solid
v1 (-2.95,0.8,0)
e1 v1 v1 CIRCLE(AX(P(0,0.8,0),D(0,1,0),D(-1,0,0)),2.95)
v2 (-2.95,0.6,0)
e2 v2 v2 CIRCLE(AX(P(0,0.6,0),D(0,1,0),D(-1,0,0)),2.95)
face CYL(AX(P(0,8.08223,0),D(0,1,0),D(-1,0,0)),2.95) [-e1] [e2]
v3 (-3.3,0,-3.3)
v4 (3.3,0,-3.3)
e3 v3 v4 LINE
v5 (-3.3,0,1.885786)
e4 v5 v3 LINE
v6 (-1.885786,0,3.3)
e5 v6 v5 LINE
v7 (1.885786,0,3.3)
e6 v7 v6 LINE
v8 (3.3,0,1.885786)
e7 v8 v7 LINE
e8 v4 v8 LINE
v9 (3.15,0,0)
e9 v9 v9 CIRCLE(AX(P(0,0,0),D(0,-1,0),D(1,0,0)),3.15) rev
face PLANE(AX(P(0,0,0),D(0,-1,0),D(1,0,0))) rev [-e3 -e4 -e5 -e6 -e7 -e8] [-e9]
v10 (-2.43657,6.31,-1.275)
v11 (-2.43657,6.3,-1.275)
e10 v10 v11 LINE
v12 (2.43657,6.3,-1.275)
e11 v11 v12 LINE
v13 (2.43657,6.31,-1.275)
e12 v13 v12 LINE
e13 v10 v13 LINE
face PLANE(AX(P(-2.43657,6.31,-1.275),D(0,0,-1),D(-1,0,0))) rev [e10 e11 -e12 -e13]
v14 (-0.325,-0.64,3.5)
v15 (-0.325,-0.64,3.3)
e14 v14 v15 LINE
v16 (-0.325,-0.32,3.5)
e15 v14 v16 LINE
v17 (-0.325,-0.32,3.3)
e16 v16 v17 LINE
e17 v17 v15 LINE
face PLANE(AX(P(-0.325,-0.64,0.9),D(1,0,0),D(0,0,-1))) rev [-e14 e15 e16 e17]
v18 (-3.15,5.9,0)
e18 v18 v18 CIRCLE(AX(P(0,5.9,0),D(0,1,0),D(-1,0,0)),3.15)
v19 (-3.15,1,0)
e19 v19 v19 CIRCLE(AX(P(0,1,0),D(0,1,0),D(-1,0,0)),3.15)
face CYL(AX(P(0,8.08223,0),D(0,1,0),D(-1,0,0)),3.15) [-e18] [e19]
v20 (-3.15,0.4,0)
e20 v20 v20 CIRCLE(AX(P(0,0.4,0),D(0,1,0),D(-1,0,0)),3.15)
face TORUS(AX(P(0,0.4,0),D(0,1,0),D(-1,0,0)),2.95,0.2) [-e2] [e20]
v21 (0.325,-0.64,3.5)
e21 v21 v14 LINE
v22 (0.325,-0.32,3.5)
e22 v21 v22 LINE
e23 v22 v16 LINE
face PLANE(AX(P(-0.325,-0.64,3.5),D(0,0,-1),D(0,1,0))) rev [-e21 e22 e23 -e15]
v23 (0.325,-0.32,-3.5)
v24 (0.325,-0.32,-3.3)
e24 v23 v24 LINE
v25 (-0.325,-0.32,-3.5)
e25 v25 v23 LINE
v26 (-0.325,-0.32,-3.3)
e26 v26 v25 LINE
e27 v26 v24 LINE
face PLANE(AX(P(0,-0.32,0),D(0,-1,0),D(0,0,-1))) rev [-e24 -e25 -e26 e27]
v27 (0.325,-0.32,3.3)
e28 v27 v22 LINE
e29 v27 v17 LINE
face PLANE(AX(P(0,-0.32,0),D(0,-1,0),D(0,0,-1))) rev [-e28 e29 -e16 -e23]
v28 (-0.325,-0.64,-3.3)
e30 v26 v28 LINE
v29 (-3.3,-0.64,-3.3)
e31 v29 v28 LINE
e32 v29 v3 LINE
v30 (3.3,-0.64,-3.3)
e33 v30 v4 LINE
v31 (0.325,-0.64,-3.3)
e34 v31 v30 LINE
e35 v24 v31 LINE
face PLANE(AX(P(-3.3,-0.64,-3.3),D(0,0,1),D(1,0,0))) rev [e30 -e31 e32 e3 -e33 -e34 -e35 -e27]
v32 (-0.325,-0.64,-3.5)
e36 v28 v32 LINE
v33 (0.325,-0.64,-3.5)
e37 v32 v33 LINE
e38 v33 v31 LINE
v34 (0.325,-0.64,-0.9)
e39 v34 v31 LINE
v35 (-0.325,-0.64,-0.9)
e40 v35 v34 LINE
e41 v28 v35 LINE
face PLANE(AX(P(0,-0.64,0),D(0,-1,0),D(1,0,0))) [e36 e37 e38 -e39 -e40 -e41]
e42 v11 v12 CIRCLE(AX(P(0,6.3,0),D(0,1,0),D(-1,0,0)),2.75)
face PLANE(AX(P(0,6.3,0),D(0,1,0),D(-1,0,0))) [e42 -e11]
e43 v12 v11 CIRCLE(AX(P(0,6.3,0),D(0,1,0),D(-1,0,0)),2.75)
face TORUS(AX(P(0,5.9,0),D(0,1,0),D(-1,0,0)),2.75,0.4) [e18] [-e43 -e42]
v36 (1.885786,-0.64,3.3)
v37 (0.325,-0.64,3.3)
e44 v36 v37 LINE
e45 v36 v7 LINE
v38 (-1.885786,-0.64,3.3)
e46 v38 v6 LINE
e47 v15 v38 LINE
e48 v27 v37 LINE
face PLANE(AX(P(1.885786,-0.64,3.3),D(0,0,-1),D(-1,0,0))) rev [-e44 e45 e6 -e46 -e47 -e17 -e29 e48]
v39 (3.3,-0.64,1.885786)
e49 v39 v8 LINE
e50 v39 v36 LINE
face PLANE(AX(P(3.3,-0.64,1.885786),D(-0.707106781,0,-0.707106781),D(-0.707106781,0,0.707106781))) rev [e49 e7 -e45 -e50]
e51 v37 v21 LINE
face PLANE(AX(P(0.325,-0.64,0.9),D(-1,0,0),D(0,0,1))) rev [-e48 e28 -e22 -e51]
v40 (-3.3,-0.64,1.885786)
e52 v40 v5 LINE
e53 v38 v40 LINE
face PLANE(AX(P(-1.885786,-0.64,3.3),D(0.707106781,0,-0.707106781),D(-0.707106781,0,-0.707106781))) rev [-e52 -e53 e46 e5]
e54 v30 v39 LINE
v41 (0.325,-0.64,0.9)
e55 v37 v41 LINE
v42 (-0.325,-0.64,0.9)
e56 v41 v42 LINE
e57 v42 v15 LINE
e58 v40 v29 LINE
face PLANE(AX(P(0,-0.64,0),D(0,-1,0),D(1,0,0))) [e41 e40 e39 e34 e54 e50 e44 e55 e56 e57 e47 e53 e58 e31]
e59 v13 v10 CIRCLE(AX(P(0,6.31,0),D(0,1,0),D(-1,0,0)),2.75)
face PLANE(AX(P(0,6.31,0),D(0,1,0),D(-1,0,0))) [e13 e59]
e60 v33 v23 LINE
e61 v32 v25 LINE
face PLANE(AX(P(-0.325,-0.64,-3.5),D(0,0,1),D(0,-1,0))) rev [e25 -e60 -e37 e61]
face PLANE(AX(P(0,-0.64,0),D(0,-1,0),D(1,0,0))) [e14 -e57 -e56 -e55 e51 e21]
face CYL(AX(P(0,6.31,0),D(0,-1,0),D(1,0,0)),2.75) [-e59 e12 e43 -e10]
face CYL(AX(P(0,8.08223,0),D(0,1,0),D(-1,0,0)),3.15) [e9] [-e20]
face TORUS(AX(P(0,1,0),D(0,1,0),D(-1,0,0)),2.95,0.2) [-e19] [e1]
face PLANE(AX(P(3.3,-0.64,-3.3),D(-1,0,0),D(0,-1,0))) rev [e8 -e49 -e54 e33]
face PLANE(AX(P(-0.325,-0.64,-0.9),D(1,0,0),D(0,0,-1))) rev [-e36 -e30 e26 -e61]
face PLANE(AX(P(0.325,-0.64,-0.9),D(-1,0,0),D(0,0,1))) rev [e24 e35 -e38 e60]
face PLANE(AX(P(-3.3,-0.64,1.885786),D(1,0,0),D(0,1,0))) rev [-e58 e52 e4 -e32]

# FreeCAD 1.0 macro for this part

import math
import FreeCAD as App
import Part
import Sketcher
Q = App.Units.Quantity

doc = App.newDocument("Part")
body = doc.addObject("PartDesign::Body", "Body")

# Sketch on XY plane
sketch1 = body.newObject("Sketcher::SketchObject", "Sketch")
sketch1.AttachmentSupport = (doc.getObject("XY_Plane"), [""])
sketch1.MapMode = "FlatFace"
sketch1.addGeometry([
    Part.LineSegment(App.Vector(0, 6.3, 0), App.Vector(-2.75, 6.3, 0)),  # 0
    Part.ArcOfCircle(Part.Circle(App.Vector(-2.75, 5.9, 0), App.Vector(0, 0, 1), 0.4), math.radians(90), math.radians(180)),  # 1
    Part.LineSegment(App.Vector(-3.15, 5.9, 0), App.Vector(-3.15, 1, 0)),  # 2
    Part.ArcOfCircle(Part.Circle(App.Vector(-2.95, 1, 0), App.Vector(0, 0, 1), 0.2), math.radians(-180), math.radians(-90)),  # 3
    Part.LineSegment(App.Vector(-2.95, 0.8, 0), App.Vector(-2.95, 0.6, 0)),  # 4
    Part.ArcOfCircle(Part.Circle(App.Vector(-2.95, 0.4, 0), App.Vector(0, 0, 1), 0.2), math.radians(90), math.radians(180)),  # 5
    Part.LineSegment(App.Vector(-3.15, 0.4, 0), App.Vector(-3.15, 0, 0)),  # 6
    Part.LineSegment(App.Vector(-3.15, 0, 0), App.Vector(0, 0, 0)),  # 7
    Part.LineSegment(App.Vector(0, 0, 0), App.Vector(0, 6.3, 0)),  # 8
], False)
sketch1.addConstraint([
    Sketcher.Constraint("Tangent", 0, 2, 1, 1),
    Sketcher.Constraint("Tangent", 1, 2, 2, 1),
    Sketcher.Constraint("Tangent", 2, 2, 3, 1),
    Sketcher.Constraint("Coincident", 3, 2, 4, 1),
    Sketcher.Constraint("Coincident", 4, 2, 5, 1),
    Sketcher.Constraint("Tangent", 5, 2, 6, 1),
    Sketcher.Constraint("Coincident", 6, 2, 7, 1),
    Sketcher.Constraint("Coincident", 7, 2, 8, 1),
    Sketcher.Constraint("Coincident", 8, 2, 0, 1),
    Sketcher.Constraint("Horizontal", 0),
    Sketcher.Constraint("Vertical", 2),
    Sketcher.Constraint("Vertical", 4),
    Sketcher.Constraint("Vertical", 6),
    Sketcher.Constraint("Horizontal", 7),
    Sketcher.Constraint("Vertical", 8),
    Sketcher.Constraint("Coincident", 7, 2, -1, 1),
    Sketcher.Constraint("Equal", 3, 5),
    Sketcher.Constraint("Vertical", 3, 3, 5, 3),
    Sketcher.Constraint("Vertical", 5, 3, 3, 2),
    Sketcher.Constraint("Radius", 1, Q("0.4 mm")),
    Sketcher.Constraint("Radius", 3, Q("0.2 mm")),
    Sketcher.Constraint("DistanceY", 2, 2, 2, 1, Q("4.9 mm")),
    Sketcher.Constraint("DistanceY", 4, 2, 4, 1, Q("0.2 mm")),
    Sketcher.Constraint("DistanceY", 6, 2, 6, 1, Q("0.4 mm")),
    Sketcher.Constraint("DistanceX", 0, 2, 0, 1, Q("2.75 mm")),
])
revolution = body.newObject("PartDesign::Revolution", "Revolution")
revolution.Profile = sketch1
revolution.ReferenceAxis = (sketch1, ["V_Axis"])
revolution.Angle = 360

# Sketch on XZ plane
sketch2 = body.newObject("Sketcher::SketchObject", "Sketch001")
sketch2.AttachmentSupport = (doc.getObject("XZ_Plane"), [""])
sketch2.MapMode = "FlatFace"
sketch2.AttachmentOffset = App.Placement(App.Vector(0, 0, -6.3), App.Rotation())
sketch2.addGeometry([
    Part.LineSegment(App.Vector(-2.4, -1.3, 0), App.Vector(2.4, -1.3, 0)),
    Part.ArcOfCircle(Part.Circle(App.Vector(0, 0, 0), App.Vector(0, 0, 1), 2.8), math.radians(-152), math.radians(-28)),
], False)
sketch2.addConstraint([
    Sketcher.Constraint("Coincident", 0, 1, 1, 1),
    Sketcher.Constraint("Coincident", 1, 2, 0, 2),
    Sketcher.Constraint("Horizontal", 0),
    Sketcher.Constraint("Coincident", 1, 3, -1, 1),
    Sketcher.Constraint("Radius", 1, Q("2.75 mm")),
    Sketcher.Constraint("DistanceY", 0, 1, -1, 1, Q("1.275 mm")),
])
pad1 = body.newObject("PartDesign::Pad", "Pad")
pad1.Profile = sketch2
pad1.Length = 0.01
pad1.Reversed = True

# Sketch on XZ plane
sketch3 = body.newObject("Sketcher::SketchObject", "Sketch002")
sketch3.AttachmentSupport = (doc.getObject("XZ_Plane"), [""])
sketch3.MapMode = "FlatFace"
sketch3.addGeometry([
    Part.LineSegment(App.Vector(-1.9, 3.3, 0), App.Vector(-3.3, 1.9, 0)),  # 0
    Part.LineSegment(App.Vector(-3.3, 1.9, 0), App.Vector(-3.3, -3.3, 0)),  # 1
    Part.LineSegment(App.Vector(-3.3, -3.3, 0), App.Vector(3.3, -3.3, 0)),  # 2
    Part.LineSegment(App.Vector(3.3, -3.3, 0), App.Vector(3.3, 1.9, 0)),  # 3
    Part.LineSegment(App.Vector(3.3, 1.9, 0), App.Vector(1.9, 3.3, 0)),  # 4
    Part.LineSegment(App.Vector(1.9, 3.3, 0), App.Vector(-1.9, 3.3, 0)),  # 5
], False)
sketch3.addConstraint([
    Sketcher.Constraint("Coincident", 0, 2, 1, 1),
    Sketcher.Constraint("Coincident", 1, 2, 2, 1),
    Sketcher.Constraint("Coincident", 2, 2, 3, 1),
    Sketcher.Constraint("Coincident", 3, 2, 4, 1),
    Sketcher.Constraint("Coincident", 4, 2, 5, 1),
    Sketcher.Constraint("Coincident", 5, 2, 0, 1),
    Sketcher.Constraint("Vertical", 1),
    Sketcher.Constraint("Horizontal", 2),
    Sketcher.Constraint("Vertical", 3),
    Sketcher.Constraint("Horizontal", 5),
    Sketcher.Constraint("Symmetric", 0, 2, 3, 2, -2),
    Sketcher.Constraint("Perpendicular", 0, 4),
    Sketcher.Constraint("Equal", 0, 4),
    Sketcher.Constraint("Distance", 0, Q("2 mm")),
    Sketcher.Constraint("DistanceX", 2, 1, 2, 2, Q("6.6 mm")),
    Sketcher.Constraint("DistanceY", 1, 2, -1, 1, Q("3.3 mm")),
    Sketcher.Constraint("DistanceY", -1, 1, 4, 2, Q("3.3 mm")),
])
pad2 = body.newObject("PartDesign::Pad", "Pad001")
pad2.Profile = sketch3
pad2.Length = 0.64

# Sketch on XZ plane
sketch4 = body.newObject("Sketcher::SketchObject", "Sketch003")
sketch4.AttachmentSupport = (doc.getObject("XZ_Plane"), [""])
sketch4.MapMode = "FlatFace"
sketch4.AttachmentOffset = App.Placement(App.Vector(0, 0, 0.64), App.Rotation())
sketch4.addGeometry([
    Part.LineSegment(App.Vector(-0.3, -0.9, 0), App.Vector(-0.3, -3.3, 0)),  # 0
    Part.LineSegment(App.Vector(-0.3, -3.3, 0), App.Vector(0.3, -3.3, 0)),  # 1
    Part.LineSegment(App.Vector(0.3, -3.3, 0), App.Vector(0.3, -0.9, 0)),  # 2
    Part.LineSegment(App.Vector(0.3, -0.9, 0), App.Vector(-0.3, -0.9, 0)),  # 3
    Part.LineSegment(App.Vector(-0.3, 0.9, 0), App.Vector(0.3, 0.9, 0)),  # 4
    Part.LineSegment(App.Vector(0.3, 0.9, 0), App.Vector(0.3, 3.3, 0)),  # 5
    Part.LineSegment(App.Vector(0.3, 3.3, 0), App.Vector(-0.3, 3.3, 0)),  # 6
    Part.LineSegment(App.Vector(-0.3, 3.3, 0), App.Vector(-0.3, 0.9, 0)),  # 7
], False)
sketch4.addConstraint([
    Sketcher.Constraint("Coincident", 0, 2, 1, 1),
    Sketcher.Constraint("Coincident", 1, 2, 2, 1),
    Sketcher.Constraint("Coincident", 2, 2, 3, 1),
    Sketcher.Constraint("Coincident", 3, 2, 0, 1),
    Sketcher.Constraint("Coincident", 4, 2, 5, 1),
    Sketcher.Constraint("Coincident", 5, 2, 6, 1),
    Sketcher.Constraint("Coincident", 6, 2, 7, 1),
    Sketcher.Constraint("Coincident", 7, 2, 4, 1),
    Sketcher.Constraint("Vertical", 0),
    Sketcher.Constraint("Horizontal", 1),
    Sketcher.Constraint("Vertical", 2),
    Sketcher.Constraint("Horizontal", 3),
    Sketcher.Constraint("Horizontal", 4),
    Sketcher.Constraint("Vertical", 5),
    Sketcher.Constraint("Horizontal", 6),
    Sketcher.Constraint("Vertical", 7),
    Sketcher.Constraint("Symmetric", 3, 2, 4, 2, -1, 1),
    Sketcher.Constraint("Symmetric", 1, 2, 6, 2, -1, 1),
    Sketcher.Constraint("Vertical", 2, 2, 4, 2),
    Sketcher.Constraint("DistanceY", 0, 2, 0, 1, Q("2.4 mm")),
    Sketcher.Constraint("DistanceX", 1, 1, 1, 2, Q("0.65 mm")),
    Sketcher.Constraint("DistanceY", 0, 2, -1, 1, Q("3.3 mm")),
])
pocket1 = body.newObject("PartDesign::Pocket", "Pocket")
pocket1.Profile = sketch4
pocket1.Length = 0.32

# Sketch on XZ plane
sketch5 = body.newObject("Sketcher::SketchObject", "Sketch004")
sketch5.AttachmentSupport = (doc.getObject("XZ_Plane"), [""])
sketch5.MapMode = "FlatFace"
sketch5.AttachmentOffset = App.Placement(App.Vector(0, 0, 0.32), App.Rotation())
sketch5.addGeometry([
    Part.LineSegment(App.Vector(-0.3, -0.9, 0), App.Vector(-0.3, -3.5, 0)),  # 0
    Part.LineSegment(App.Vector(-0.3, -3.5, 0), App.Vector(0.3, -3.5, 0)),  # 1
    Part.LineSegment(App.Vector(0.3, -3.5, 0), App.Vector(0.3, -0.9, 0)),  # 2
    Part.LineSegment(App.Vector(0.3, -0.9, 0), App.Vector(-0.3, -0.9, 0)),  # 3
    Part.LineSegment(App.Vector(-0.3, 3.5, 0), App.Vector(-0.3, 0.9, 0)),  # 4
    Part.LineSegment(App.Vector(-0.3, 0.9, 0), App.Vector(0.3, 0.9, 0)),  # 5
    Part.LineSegment(App.Vector(0.3, 0.9, 0), App.Vector(0.3, 3.5, 0)),  # 6
    Part.LineSegment(App.Vector(0.3, 3.5, 0), App.Vector(-0.3, 3.5, 0)),  # 7
], False)
sketch5.addConstraint([
    Sketcher.Constraint("Coincident", 0, 2, 1, 1),
    Sketcher.Constraint("Coincident", 1, 2, 2, 1),
    Sketcher.Constraint("Coincident", 2, 2, 3, 1),
    Sketcher.Constraint("Coincident", 3, 2, 0, 1),
    Sketcher.Constraint("Coincident", 4, 2, 5, 1),
    Sketcher.Constraint("Coincident", 5, 2, 6, 1),
    Sketcher.Constraint("Coincident", 6, 2, 7, 1),
    Sketcher.Constraint("Coincident", 7, 2, 4, 1),
    Sketcher.Constraint("Vertical", 0),
    Sketcher.Constraint("Horizontal", 1),
    Sketcher.Constraint("Vertical", 2),
    Sketcher.Constraint("Horizontal", 3),
    Sketcher.Constraint("Vertical", 4),
    Sketcher.Constraint("Horizontal", 5),
    Sketcher.Constraint("Vertical", 6),
    Sketcher.Constraint("Horizontal", 7),
    Sketcher.Constraint("Symmetric", 2, 2, 4, 2, -1, 1),
    Sketcher.Constraint("Symmetric", 0, 2, 6, 2, -1, 1),
    Sketcher.Constraint("Vertical", 3, 2, 4, 2),
    Sketcher.Constraint("DistanceY", 0, 2, 0, 1, Q("2.6 mm")),
    Sketcher.Constraint("DistanceY", 1, 2, 6, 2, Q("7 mm")),
    Sketcher.Constraint("DistanceX", 1, 1, 1, 2, Q("0.65 mm")),
])
pad3 = body.newObject("PartDesign::Pad", "Pad002")
pad3.Profile = sketch5
pad3.Length = 0.32

doc.recompute()
